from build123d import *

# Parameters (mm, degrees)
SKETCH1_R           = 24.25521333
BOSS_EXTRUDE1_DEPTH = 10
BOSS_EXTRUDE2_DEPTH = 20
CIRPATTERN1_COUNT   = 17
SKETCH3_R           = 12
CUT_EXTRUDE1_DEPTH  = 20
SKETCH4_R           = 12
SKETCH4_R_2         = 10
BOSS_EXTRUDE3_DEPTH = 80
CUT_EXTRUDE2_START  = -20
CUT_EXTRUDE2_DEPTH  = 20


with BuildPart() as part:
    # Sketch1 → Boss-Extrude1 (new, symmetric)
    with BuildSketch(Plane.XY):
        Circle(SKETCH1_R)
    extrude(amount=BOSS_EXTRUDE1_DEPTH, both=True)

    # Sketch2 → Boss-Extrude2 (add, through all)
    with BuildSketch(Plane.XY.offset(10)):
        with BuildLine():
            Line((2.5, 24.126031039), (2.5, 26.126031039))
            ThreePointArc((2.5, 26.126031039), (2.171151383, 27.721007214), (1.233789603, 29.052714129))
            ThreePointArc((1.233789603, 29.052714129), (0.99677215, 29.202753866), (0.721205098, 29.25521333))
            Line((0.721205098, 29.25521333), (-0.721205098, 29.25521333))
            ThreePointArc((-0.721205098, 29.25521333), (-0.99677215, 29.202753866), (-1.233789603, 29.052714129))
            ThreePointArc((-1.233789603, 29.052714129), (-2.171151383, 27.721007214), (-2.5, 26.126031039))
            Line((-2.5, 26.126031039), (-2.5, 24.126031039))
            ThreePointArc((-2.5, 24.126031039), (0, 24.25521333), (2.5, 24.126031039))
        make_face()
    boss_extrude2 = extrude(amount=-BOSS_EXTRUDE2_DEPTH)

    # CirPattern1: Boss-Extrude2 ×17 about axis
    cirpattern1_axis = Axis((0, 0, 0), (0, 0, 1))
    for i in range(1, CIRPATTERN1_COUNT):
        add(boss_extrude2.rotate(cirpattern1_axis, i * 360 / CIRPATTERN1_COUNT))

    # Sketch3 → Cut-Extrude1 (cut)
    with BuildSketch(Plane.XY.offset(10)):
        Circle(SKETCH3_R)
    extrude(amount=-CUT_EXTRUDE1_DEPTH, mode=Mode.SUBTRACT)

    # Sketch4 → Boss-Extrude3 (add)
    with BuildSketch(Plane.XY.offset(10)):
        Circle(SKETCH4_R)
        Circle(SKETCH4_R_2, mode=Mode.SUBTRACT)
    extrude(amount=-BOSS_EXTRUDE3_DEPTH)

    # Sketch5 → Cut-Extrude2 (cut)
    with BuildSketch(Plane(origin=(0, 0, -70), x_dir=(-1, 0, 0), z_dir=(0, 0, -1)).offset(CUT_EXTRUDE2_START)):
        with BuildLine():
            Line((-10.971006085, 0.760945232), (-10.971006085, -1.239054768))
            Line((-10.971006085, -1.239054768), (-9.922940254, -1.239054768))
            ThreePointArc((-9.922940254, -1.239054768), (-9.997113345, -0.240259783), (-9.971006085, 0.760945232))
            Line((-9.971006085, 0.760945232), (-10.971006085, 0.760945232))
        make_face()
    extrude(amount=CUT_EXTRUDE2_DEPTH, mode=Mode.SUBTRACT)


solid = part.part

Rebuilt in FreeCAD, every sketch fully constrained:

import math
import FreeCAD as App
import Part
import Sketcher
from FreeCAD import Vector
Q = App.Units.Quantity

doc = App.newDocument("Part")
body = doc.addObject("PartDesign::Body", "Body")

# Sketch on XY plane
sketch1 = body.newObject("Sketcher::SketchObject", "Sketch")
sketch1.AttachmentSupport = (doc.getObject("XY_Plane"), [""])
sketch1.MapMode = "FlatFace"
sketch1.addGeometry(Part.Circle(Vector(0, 0, 0), Vector(0, 0, 1), 24), False)
sketch1.addConstraint([
    Sketcher.Constraint("Coincident", 0, 3, -1, 1),
    Sketcher.Constraint("Diameter", 0, Q("48.510427 mm")),
])
pad1 = body.newObject("PartDesign::Pad", "Pad")
pad1.Profile = sketch1
pad1.Length = 20
pad1.Midplane = True

# Sketch on XY plane
sketch2 = body.newObject("Sketcher::SketchObject", "Sketch001")
sketch2.AttachmentSupport = (doc.getObject("XY_Plane"), [""])
sketch2.MapMode = "FlatFace"
sketch2.AttachmentOffset = App.Placement(Vector(0, 0, 10), App.Rotation())
sketch2.addGeometry([
    Part.LineSegment(Vector(2.5, 24.1, 0), Vector(2.5, 26.1, 0)),  # 0
    Part.ArcOfCircle(Part.Circle(Vector(-1.5, 26.1, 0), Vector(0, 0, 1), 4), math.radians(0), math.radians(47)),  # 1
    Part.ArcOfCircle(Part.Circle(Vector(0.7, 28.5, 0), Vector(0, 0, 1), 0.8), math.radians(47), math.radians(90)),  # 2
    Part.LineSegment(Vector(0.7, 29.3, 0), Vector(-0.7, 29.3, 0)),  # 3
    Part.ArcOfCircle(Part.Circle(Vector(-0.7, 28.5, 0), Vector(0, 0, 1), 0.8), math.radians(90), math.radians(133)),  # 4
    Part.ArcOfCircle(Part.Circle(Vector(1.5, 26.1, 0), Vector(0, 0, 1), 4), math.radians(133), math.radians(180)),  # 5
    Part.LineSegment(Vector(-2.5, 26.1, 0), Vector(-2.5, 24.1, 0)),  # 6
    Part.ArcOfCircle(Part.Circle(Vector(0, 0, 0), Vector(0, 0, 1), 24.3), math.radians(84.08), math.radians(95.92)),  # 7
], False)
sketch2.addConstraint([
    Sketcher.Constraint("Coincident", 0, 2, 1, 1),
    Sketcher.Constraint("Tangent", 1, 2, 2, 1),
    Sketcher.Constraint("Tangent", 2, 2, 3, 1),
    Sketcher.Constraint("Tangent", 3, 2, 4, 1),
    Sketcher.Constraint("Tangent", 4, 2, 5, 1),
    Sketcher.Constraint("Coincident", 5, 2, 6, 1),
    Sketcher.Constraint("Coincident", 6, 2, 7, 2),
    Sketcher.Constraint("Coincident", 7, 1, 0, 1),
    Sketcher.Constraint("Vertical", 0),
    Sketcher.Constraint("Horizontal", 3),
    Sketcher.Constraint("Vertical", 6),
    Sketcher.Constraint("Coincident", 7, 3, -1, 1),
    Sketcher.Constraint("Equal", 2, 4),
    Sketcher.Constraint("Equal", 1, 5),
    Sketcher.Constraint("Symmetric", 1, 3, 5, 3, -2),
    Sketcher.Constraint("Horizontal", 0, 2, 5, 2),
    Sketcher.Constraint("Radius", 1, Q("4 mm")),
    Sketcher.Constraint("DistanceY", 0, 1, 0, 2, Q("2 mm")),
    Sketcher.Constraint("Radius", 2, Q("0.75 mm")),
    Sketcher.Constraint("DistanceX", 6, 2, 7, 1, Q("5 mm")),
    Sketcher.Constraint("Radius", 7, Q("24.255213 mm")),
    Sketcher.Constraint("DistanceX", 3, 2, 3, 1, Q("1.44241 mm")),
    Sketcher.Constraint("DistanceY", -1, 1, 1, 3, Q("26.13271 mm")),
])
pad2 = body.newObject("PartDesign::Pad", "Pad001")
pad2.Profile = sketch2
pad2.Length = 20
pad2.Reversed = True
doc.recompute()

polarpattern = body.newObject("PartDesign::PolarPattern", "PolarPattern")
polarpattern.Originals = [pad2]
polarpattern.Axis = (doc.getObject("Z_Axis"), [""])
polarpattern.Angle = 360
polarpattern.Occurrences = 17
body.Tip = polarpattern

# Sketch on XY plane
sketch3 = body.newObject("Sketcher::SketchObject", "Sketch002")
sketch3.AttachmentSupport = (doc.getObject("XY_Plane"), [""])
sketch3.MapMode = "FlatFace"
sketch3.AttachmentOffset = App.Placement(Vector(0, 0, 10), App.Rotation())
sketch3.addGeometry(Part.Circle(Vector(0, 0, 0), Vector(0, 0, 1), 12), False)
sketch3.addConstraint([
    Sketcher.Constraint("Coincident", 0, 3, -1, 1),
    Sketcher.Constraint("Diameter", 0, Q("24 mm")),
])
pocket1 = body.newObject("PartDesign::Pocket", "Pocket")
pocket1.Profile = sketch3
pocket1.Length = 20

# Sketch on XY plane
sketch4 = body.newObject("Sketcher::SketchObject", "Sketch003")
sketch4.AttachmentSupport = (doc.getObject("XY_Plane"), [""])
sketch4.MapMode = "FlatFace"
sketch4.AttachmentOffset = App.Placement(Vector(0, 0, 10), App.Rotation())
sketch4.addGeometry([
    Part.Circle(Vector(0, 0, 0), Vector(0, 0, 1), 12),
    Part.Circle(Vector(0, 0, 0), Vector(0, 0, 1), 10),
], False)
sketch4.addConstraint([
    Sketcher.Constraint("Coincident", 0, 3, -1, 1),
    Sketcher.Constraint("Coincident", 1, 3, -1, 1),
    Sketcher.Constraint("Diameter", 0, Q("24 mm")),
    Sketcher.Constraint("Diameter", 1, Q("20 mm")),
])
pad3 = body.newObject("PartDesign::Pad", "Pad002")
pad3.Profile = sketch4
pad3.Length = 80
pad3.Reversed = True

# Sketch on XY plane
sketch5 = body.newObject("Sketcher::SketchObject", "Sketch004")
sketch5.AttachmentSupport = (doc.getObject("XY_Plane"), [""])
sketch5.MapMode = "FlatFace"
sketch5.AttachmentOffset = App.Placement(Vector(0, 0, -50), App.Rotation())
sketch5.addGeometry([
    Part.LineSegment(Vector(11, 0.8, 0), Vector(11, -1.2, 0)),
    Part.LineSegment(Vector(11, -1.2, 0), Vector(9.9, -1.2, 0)),
    Part.ArcOfCircle(Part.Circle(Vector(0, 0, 0), Vector(0, 0, 1), 10), math.radians(-7.12), math.radians(4.36)),
    Part.LineSegment(Vector(10, 0.8, 0), Vector(11, 0.8, 0)),
], False)
sketch5.addConstraint([
    Sketcher.Constraint("Coincident", 0, 2, 1, 1),
    Sketcher.Constraint("Coincident", 1, 2, 2, 1),
    Sketcher.Constraint("Coincident", 2, 2, 3, 1),
    Sketcher.Constraint("Coincident", 3, 2, 0, 1),
    Sketcher.Constraint("Vertical", 0),
    Sketcher.Constraint("Horizontal", 1),
    Sketcher.Constraint("Horizontal", 3),
    Sketcher.Constraint("Coincident", 2, 3, -1, 1),
    Sketcher.Constraint("Radius", 2, Q("10 mm")),
    Sketcher.Constraint("DistanceX", 3, 1, 3, 2, Q("1 mm")),
    Sketcher.Constraint("DistanceY", 0, 2, 0, 1, Q("2 mm")),
    Sketcher.Constraint("DistanceX", 1, 2, 1, 1, Q("1.048066 mm")),
])
pocket2 = body.newObject("PartDesign::Pocket", "Pocket001")
pocket2.Profile = sketch5
pocket2.Length = 20

doc.recompute()
